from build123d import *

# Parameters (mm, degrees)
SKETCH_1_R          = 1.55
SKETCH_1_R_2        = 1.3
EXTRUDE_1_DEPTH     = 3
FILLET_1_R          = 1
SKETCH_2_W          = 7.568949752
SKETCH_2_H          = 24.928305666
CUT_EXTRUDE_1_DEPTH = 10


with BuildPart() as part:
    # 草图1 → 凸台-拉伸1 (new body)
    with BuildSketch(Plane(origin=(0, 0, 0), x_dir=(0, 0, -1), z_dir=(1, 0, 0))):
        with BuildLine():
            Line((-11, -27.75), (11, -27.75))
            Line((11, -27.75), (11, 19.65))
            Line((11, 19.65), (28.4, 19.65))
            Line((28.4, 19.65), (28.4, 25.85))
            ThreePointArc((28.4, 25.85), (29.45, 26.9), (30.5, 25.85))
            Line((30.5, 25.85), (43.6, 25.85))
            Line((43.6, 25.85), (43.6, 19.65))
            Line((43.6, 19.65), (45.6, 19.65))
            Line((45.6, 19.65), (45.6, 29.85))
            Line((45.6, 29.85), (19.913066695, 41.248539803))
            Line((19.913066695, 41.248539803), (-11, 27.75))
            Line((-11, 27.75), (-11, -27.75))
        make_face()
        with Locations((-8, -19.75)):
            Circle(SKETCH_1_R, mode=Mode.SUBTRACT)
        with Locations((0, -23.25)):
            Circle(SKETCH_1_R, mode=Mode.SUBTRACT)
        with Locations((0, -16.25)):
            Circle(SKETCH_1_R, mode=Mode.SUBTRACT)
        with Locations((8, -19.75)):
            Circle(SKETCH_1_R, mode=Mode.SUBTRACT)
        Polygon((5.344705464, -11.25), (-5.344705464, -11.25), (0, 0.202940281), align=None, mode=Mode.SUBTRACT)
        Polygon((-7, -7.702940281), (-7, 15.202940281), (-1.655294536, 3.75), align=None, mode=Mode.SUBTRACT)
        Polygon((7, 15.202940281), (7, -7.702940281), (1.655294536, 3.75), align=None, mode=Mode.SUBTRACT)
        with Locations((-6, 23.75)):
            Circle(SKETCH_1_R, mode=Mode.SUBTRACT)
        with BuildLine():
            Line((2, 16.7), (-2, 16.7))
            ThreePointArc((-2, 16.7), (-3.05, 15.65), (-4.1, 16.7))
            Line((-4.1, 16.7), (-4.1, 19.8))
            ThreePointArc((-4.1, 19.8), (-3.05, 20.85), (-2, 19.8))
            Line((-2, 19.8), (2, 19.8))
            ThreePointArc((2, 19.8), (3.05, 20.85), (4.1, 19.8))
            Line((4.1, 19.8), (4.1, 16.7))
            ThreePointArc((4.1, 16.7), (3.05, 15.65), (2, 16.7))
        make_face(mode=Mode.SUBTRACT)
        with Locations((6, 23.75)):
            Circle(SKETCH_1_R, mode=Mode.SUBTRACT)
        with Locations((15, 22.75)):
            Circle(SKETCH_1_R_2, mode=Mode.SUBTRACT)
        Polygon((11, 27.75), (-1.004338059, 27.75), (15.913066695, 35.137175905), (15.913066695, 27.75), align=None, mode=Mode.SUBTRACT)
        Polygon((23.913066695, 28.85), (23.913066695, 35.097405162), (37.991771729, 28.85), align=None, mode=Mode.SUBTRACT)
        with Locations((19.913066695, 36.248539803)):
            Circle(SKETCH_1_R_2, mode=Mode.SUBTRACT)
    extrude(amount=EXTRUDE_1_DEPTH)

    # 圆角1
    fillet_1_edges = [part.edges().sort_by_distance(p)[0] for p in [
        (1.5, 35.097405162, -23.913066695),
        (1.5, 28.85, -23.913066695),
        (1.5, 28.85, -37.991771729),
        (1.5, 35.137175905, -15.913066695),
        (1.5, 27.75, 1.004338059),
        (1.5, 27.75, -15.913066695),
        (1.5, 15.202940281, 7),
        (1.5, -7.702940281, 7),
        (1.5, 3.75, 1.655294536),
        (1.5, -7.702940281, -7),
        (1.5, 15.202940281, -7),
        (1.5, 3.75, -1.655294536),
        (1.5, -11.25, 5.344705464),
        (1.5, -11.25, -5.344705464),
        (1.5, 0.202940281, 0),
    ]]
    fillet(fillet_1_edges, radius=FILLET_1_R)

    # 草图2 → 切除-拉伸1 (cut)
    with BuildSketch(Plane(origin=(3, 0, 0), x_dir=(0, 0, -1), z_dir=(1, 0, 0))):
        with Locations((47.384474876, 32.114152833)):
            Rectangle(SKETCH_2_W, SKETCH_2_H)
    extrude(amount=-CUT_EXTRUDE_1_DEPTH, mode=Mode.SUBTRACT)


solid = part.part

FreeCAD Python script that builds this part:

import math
import FreeCAD as App
import Part
import Sketcher


def edges_at(feature, points):
    """Names of the edges that pass closest to the given points."""
    edges = feature.Shape.Edges
    near = lambda p: min(range(len(edges)), key=lambda i: edges[i].distToShape(Part.Vertex(*p))[0])
    return sorted({f"Edge{near(p) + 1}" for p in points})

doc = App.newDocument("Part")
body = doc.addObject("PartDesign::Body", "Body")

# Sketch on YZ plane
sketch1 = body.newObject("Sketcher::SketchObject", "Sketch")
sketch1.AttachmentSupport = (doc.getObject("YZ_Plane"), [""])
sketch1.MapMode = "FlatFace"
sketch1.addGeometry([
    Part.LineSegment(App.Vector(-27.75, 11, 0), App.Vector(-27.75, -11, 0)),  # 0
    Part.LineSegment(App.Vector(-27.75, -11, 0), App.Vector(19.65, -11, 0)),  # 1
    Part.LineSegment(App.Vector(19.65, -11, 0), App.Vector(19.65, -28.4, 0)),  # 2
    Part.LineSegment(App.Vector(19.65, -28.4, 0), App.Vector(25.85, -28.4, 0)),  # 3
    Part.ArcOfCircle(Part.Circle(App.Vector(25.85, -29.45, 0), App.Vector(0, 0, 1), 1.05), math.radians(-90), math.radians(90)),  # 4
    Part.LineSegment(App.Vector(25.85, -30.5, 0), App.Vector(25.85, -43.6, 0)),  # 5
    Part.LineSegment(App.Vector(25.85, -43.6, 0), App.Vector(19.65, -43.6, 0)),  # 6
    Part.LineSegment(App.Vector(19.65, -43.6, 0), App.Vector(19.65, -45.6, 0)),  # 7
    Part.LineSegment(App.Vector(19.65, -45.6, 0), App.Vector(29.85, -45.6, 0)),  # 8
    Part.LineSegment(App.Vector(29.85, -45.6, 0), App.Vector(41.24854, -19.913067, 0)),  # 9
    Part.LineSegment(App.Vector(41.24854, -19.913067, 0), App.Vector(27.75, 11, 0)),  # 10
    Part.LineSegment(App.Vector(27.75, 11, 0), App.Vector(-27.75, 11, 0)),  # 11
    Part.Circle(App.Vector(-19.75, 8, 0), App.Vector(0, 0, 1), 1.55),  # 12
    Part.Circle(App.Vector(-23.25, 0, 0), App.Vector(0, 0, 1), 1.55),  # 13
    Part.Circle(App.Vector(-16.25, 0, 0), App.Vector(0, 0, 1), 1.55),  # 14
    Part.Circle(App.Vector(-19.75, -8, 0), App.Vector(0, 0, 1), 1.55),  # 15
    Part.LineSegment(App.Vector(0.20294, 0, 0), App.Vector(-11.25, -5.344705, 0)),  # 16
    Part.LineSegment(App.Vector(-11.25, -5.344705, 0), App.Vector(-11.25, 5.344705, 0)),  # 17
    Part.LineSegment(App.Vector(-11.25, 5.344705, 0), App.Vector(0.20294, 0, 0)),  # 18
    Part.LineSegment(App.Vector(3.75, 1.655295, 0), App.Vector(-7.70294, 7, 0)),  # 19
    Part.LineSegment(App.Vector(-7.70294, 7, 0), App.Vector(15.20294, 7, 0)),  # 20
    Part.LineSegment(App.Vector(15.20294, 7, 0), App.Vector(3.75, 1.655295, 0)),  # 21
    Part.LineSegment(App.Vector(3.75, -1.655295, 0), App.Vector(15.20294, -7, 0)),  # 22
    Part.LineSegment(App.Vector(15.20294, -7, 0), App.Vector(-7.70294, -7, 0)),  # 23
    Part.LineSegment(App.Vector(-7.70294, -7, 0), App.Vector(3.75, -1.655295, 0)),  # 24
    Part.ArcOfCircle(Part.Circle(App.Vector(16.7, -3.05, 0), App.Vector(0, 0, 1), 1.05), math.radians(90), math.radians(270)),  # 25
    Part.LineSegment(App.Vector(16.7, -2, 0), App.Vector(16.7, 2, 0)),  # 26
    Part.ArcOfCircle(Part.Circle(App.Vector(16.7, 3.05, 0), App.Vector(0, 0, 1), 1.05), math.radians(90), math.radians(270)),  # 27
    Part.LineSegment(App.Vector(16.7, 4.1, 0), App.Vector(19.8, 4.1, 0)),  # 28
    Part.ArcOfCircle(Part.Circle(App.Vector(19.8, 3.05, 0), App.Vector(0, 0, 1), 1.05), math.radians(-90), math.radians(90)),  # 29
    Part.LineSegment(App.Vector(19.8, 2, 0), App.Vector(19.8, -2, 0)),  # 30
    Part.ArcOfCircle(Part.Circle(App.Vector(19.8, -3.05, 0), App.Vector(0, 0, 1), 1.05), math.radians(-90), math.radians(90)),  # 31
    Part.LineSegment(App.Vector(19.8, -4.1, 0), App.Vector(16.7, -4.1, 0)),  # 32
    Part.Circle(App.Vector(23.75, 6, 0), App.Vector(0, 0, 1), 1.55),  # 33
    Part.Circle(App.Vector(23.75, -6, 0), App.Vector(0, 0, 1), 1.55),  # 34
    Part.LineSegment(App.Vector(27.75, -15.913067, 0), App.Vector(27.75, 1.004338, 0)),  # 35
    Part.LineSegment(App.Vector(27.75, 1.004338, 0), App.Vector(35.137176, -15.913067, 0)),  # 36
    Part.LineSegment(App.Vector(35.137176, -15.913067, 0), App.Vector(27.75, -15.913067, 0)),  # 37
    Part.Circle(App.Vector(22.75, -15, 0), App.Vector(0, 0, 1), 1.3),  # 38
    Part.Circle(App.Vector(36.24854, -19.913067, 0), App.Vector(0, 0, 1), 1.3),  # 39
    Part.LineSegment(App.Vector(28.85, -37.991772, 0), App.Vector(28.85, -23.913067, 0)),  # 40
    Part.LineSegment(App.Vector(28.85, -23.913067, 0), App.Vector(35.097405, -23.913067, 0)),  # 41
    Part.LineSegment(App.Vector(35.097405, -23.913067, 0), App.Vector(28.85, -37.991772, 0)),  # 42
], False)
sketch1.addConstraint([
    Sketcher.Constraint("Coincident", 0, 2, 1, 1),
    Sketcher.Constraint("Coincident", 1, 2, 2, 1),
    Sketcher.Constraint("Coincident", 2, 2, 3, 1),
    Sketcher.Constraint("Tangent", 3, 2, 4, 2),
    Sketcher.Constraint("Coincident", 4, 1, 5, 1),
    Sketcher.Constraint("Coincident", 5, 2, 6, 1),
    Sketcher.Constraint("Coincident", 6, 2, 7, 1),
    Sketcher.Constraint("Coincident", 7, 2, 8, 1),
    Sketcher.Constraint("Coincident", 8, 2, 9, 1),
    Sketcher.Constraint("Coincident", 9, 2, 10, 1),
    Sketcher.Constraint("Coincident", 10, 2, 11, 1),
    Sketcher.Constraint("Coincident", 11, 2, 0, 1),
    Sketcher.Constraint("Coincident", 16, 2, 17, 1),
    Sketcher.Constraint("Coincident", 17, 2, 18, 1),
    Sketcher.Constraint("Coincident", 18, 2, 16, 1),
    Sketcher.Constraint("Coincident", 19, 2, 20, 1),
    Sketcher.Constraint("Coincident", 20, 2, 21, 1),
    Sketcher.Constraint("Coincident", 21, 2, 19, 1),
    Sketcher.Constraint("Coincident", 22, 2, 23, 1),
    Sketcher.Constraint("Coincident", 23, 2, 24, 1),
    Sketcher.Constraint("Coincident", 24, 2, 22, 1),
    Sketcher.Constraint("Coincident", 25, 1, 26, 1),
    Sketcher.Constraint("Coincident", 26, 2, 27, 2),
    Sketcher.Constraint("Tangent", 27, 1, 28, 1),
    Sketcher.Constraint("Tangent", 28, 2, 29, 2),
    Sketcher.Constraint("Coincident", 29, 1, 30, 1),
    Sketcher.Constraint("Coincident", 30, 2, 31, 2),
    Sketcher.Constraint("Tangent", 31, 1, 32, 1),
    Sketcher.Constraint("Tangent", 32, 2, 25, 2),
    Sketcher.Constraint("Coincident", 35, 2, 36, 1),
    Sketcher.Constraint("Coincident", 36, 2, 37, 1),
    Sketcher.Constraint("Coincident", 37, 2, 35, 1),
    Sketcher.Constraint("Coincident", 40, 2, 41, 1),
    Sketcher.Constraint("Coincident", 41, 2, 42, 1),
    Sketcher.Constraint("Coincident", 42, 2, 40, 1),
    Sketcher.Constraint("Vertical", 0),
    Sketcher.Constraint("Horizontal", 1),
    Sketcher.Constraint("Vertical", 2),
    Sketcher.Constraint("Horizontal", 3),
    Sketcher.Constraint("Vertical", 5),
    Sketcher.Constraint("Horizontal", 6),
    Sketcher.Constraint("Vertical", 7),
    Sketcher.Constraint("Horizontal", 8),
    Sketcher.Constraint("Horizontal", 11),
    Sketcher.Constraint("Vertical", 17),
    Sketcher.Constraint("Horizontal", 20),
    Sketcher.Constraint("Horizontal", 23),
    Sketcher.Constraint("Vertical", 26),
    Sketcher.Constraint("Horizontal", 28),
    Sketcher.Constraint("Vertical", 30),
    Sketcher.Constraint("Horizontal", 32),
    Sketcher.Constraint("Vertical", 35),
    Sketcher.Constraint("Horizontal", 37),
    Sketcher.Constraint("Vertical", 40),
    Sketcher.Constraint("Horizontal", 41),
    Sketcher.Constraint("Equal", 12, 13),
    Sketcher.Constraint("Equal", 13, 14),
    Sketcher.Constraint("Equal", 14, 15),
    Sketcher.Constraint("Equal", 4, 25),
    Sketcher.Constraint("Equal", 25, 27),
    Sketcher.Constraint("Equal", 27, 29),
    Sketcher.Constraint("Equal", 29, 31),
    Sketcher.Constraint("Equal", 15, 33),
    Sketcher.Constraint("Equal", 33, 34),
    Sketcher.Constraint("Equal", 38, 39),
    Sketcher.Constraint("Symmetric", 0, 2, 10, 2, -1, 1),
    Sketcher.Constraint("Symmetric", 12, 3, 15, 3, -1),
    Sketcher.Constraint("Symmetric", 25, 3, 27, 3, -1),
    Sketcher.Constraint("Symmetric", 33, 3, 34, 3, -1),
    Sketcher.Constraint("Symmetric", 20, 2, 22, 2, -1),
    Sketcher.Constraint("Symmetric", 21, 2, 24, 2, -1),
    Sketcher.Constraint("PointOnObject", 13, 3, -1),
    Sketcher.Constraint("PointOnObject", 14, 3, -1),
    Sketcher.Constraint("PointOnObject", 18, 2, -1),
    Sketcher.Constraint("Parallel", 18, 19),
    Sketcher.Constraint("Parallel", 16, 21),
    Sketcher.Constraint("Parallel", 19, 22),
    Sketcher.Constraint("Parallel", 21, 24),
    Sketcher.Constraint("Parallel", 10, 36),
    Sketcher.Constraint("Parallel", 9, 42),
    Sketcher.Constraint("Horizontal", 39, 3, 9, 2),
    Sketcher.Constraint("Vertical", 29, 3, 31, 3),
    Sketcher.Constraint("Vertical", 3, 2, 4, 1),
    Sketcher.Constraint("Vertical", 2, 2, 6, 2),
    Sketcher.Constraint("Vertical", 27, 3, 25, 1),
    Sketcher.Constraint("Vertical", 28, 2, 29, 1),
    Sketcher.Constraint("Vertical", 10, 2, 35, 2),
    Sketcher.Constraint("Equal", 18, 19),
    Sketcher.Constraint("Diameter", 12, 3.1),
    Sketcher.Constraint("Diameter", 38, 2.6),
    Sketcher.Constraint("DistanceY", 0, 2, 0, 1, 22.0),
    Sketcher.Constraint("DistanceY", 7, 2, 7, 1, 2.0),
    Sketcher.Constraint("DistanceY", 26, 1, 26, 2, 4.0),
    Sketcher.Constraint("Radius", 4, 1.05),
    Sketcher.Constraint("DistanceX", 1, 1, 1, 2, 47.4),
    Sketcher.Constraint("DistanceX", 3, 1, 3, 2, 6.2),
    Sketcher.Constraint("DistanceX", 8, 1, 8, 2, 10.2),
    Sketcher.Constraint("DistanceX", 11, 2, 11, 1, 55.5),
    Sketcher.Constraint("DistanceX", 28, 1, 28, 2, 3.1),
    Sketcher.Constraint("DistanceY", 2, 2, 2, 1, 17.4),
    Sketcher.Constraint("DistanceY", 5, 2, 5, 1, 13.1),
    Sketcher.Constraint("DistanceY", -1, 1, 12, 3, 8.0),
    Sketcher.Constraint("DistanceY", -1, 1, 33, 3, 6.0),
    Sketcher.Constraint("DistanceY", 38, 3, -1, 1, 15.0),
    Sketcher.Constraint("DistanceY", -1, 1, 19, 2, 7.0),
    Sketcher.Constraint("DistanceX", 13, 3, 14, 3, 7.0),
    Sketcher.Constraint("DistanceX", 38, 3, 34, 3, 1.0),
    Sketcher.Constraint("DistanceX", 0, 2, 15, 3, 8.0),
    Sketcher.Constraint("DistanceX", 39, 3, 9, 2, 5.0),
    Sketcher.Constraint("DistanceX", 33, 3, 10, 2, 4.0),
    Sketcher.Constraint("DistanceX", 14, 3, 16, 2, 5.0),
    Sketcher.Constraint("DistanceY", 39, 3, 36, 2, 4.0),
    Sketcher.Constraint("DistanceX", 3, 2, 40, 2, 3.0),
    Sketcher.Constraint("DistanceY", 40, 2, 37, 2, 8.0),
    Sketcher.Constraint("DistanceX", -1, 1, 25, 3, 16.7),
    Sketcher.Constraint("DistanceX", 13, 3, 12, 3, 3.5),
    Sketcher.Constraint("DistanceX", -1, 1, 21, 2, 3.75),
    Sketcher.Constraint("DistanceX", 20, 1, 20, 2, 22.905881),
    Sketcher.Constraint("DistanceY", 17, 1, 17, 2, 10.689411),
    Sketcher.Constraint("Distance", 10, 33.73171),
    Sketcher.Constraint("Distance", 36, 18.459928),
    Sketcher.Constraint("DistanceX", 37, 2, 37, 1, 7.387176),
    Sketcher.Constraint("DistanceX", 41, 1, 41, 2, 6.247405),
])
pad1 = body.newObject("PartDesign::Pad", "Pad")
pad1.Profile = sketch1
pad1.Length = 3
doc.recompute()

fillet = body.newObject("PartDesign::Fillet", "Fillet")
fillet.Base = (pad1, edges_at(pad1, [
    (1.5, 35.097, -23.913),
    (1.5, 28.85, -23.913),
    (1.5, 28.85, -37.992),
    (1.5, 35.137, -15.913),
    (1.5, 27.75, 1.004),
    (1.5, 27.75, -15.913),
    (1.5, 15.203, 7),
    (1.5, -7.703, 7),
    (1.5, 3.75, 1.655),
    (1.5, -7.703, -7),
    (1.5, 15.203, -7),
    (1.5, 3.75, -1.655),
    (1.5, -11.25, 5.345),
    (1.5, -11.25, -5.345),
    (1.5, 0.203, 0),
]))
fillet.Radius = 1

# Sketch on YZ plane
sketch2 = body.newObject("Sketcher::SketchObject", "Sketch001")
sketch2.AttachmentSupport = (doc.getObject("YZ_Plane"), [""])
sketch2.MapMode = "FlatFace"
sketch2.AttachmentOffset = App.Placement(App.Vector(0, 0, 3), App.Rotation())
sketch2.addGeometry([
    Part.LineSegment(App.Vector(44.578306, -43.6, 0), App.Vector(19.65, -43.6, 0)),
    Part.LineSegment(App.Vector(19.65, -43.6, 0), App.Vector(19.65, -51.16895, 0)),
    Part.LineSegment(App.Vector(19.65, -51.16895, 0), App.Vector(44.578306, -51.16895, 0)),
    Part.LineSegment(App.Vector(44.578306, -51.16895, 0), App.Vector(44.578306, -43.6, 0)),
], False)
sketch2.addConstraint([
    Sketcher.Constraint("Coincident", 0, 2, 1, 1),
    Sketcher.Constraint("Coincident", 1, 2, 2, 1),
    Sketcher.Constraint("Coincident", 2, 2, 3, 1),
    Sketcher.Constraint("Coincident", 3, 2, 0, 1),
    Sketcher.Constraint("Horizontal", 0),
    Sketcher.Constraint("Vertical", 1),
    Sketcher.Constraint("Horizontal", 2),
    Sketcher.Constraint("Vertical", 3),
    Sketcher.Constraint("DistanceY", 0, 2, -1, 1, 43.6),
    Sketcher.Constraint("DistanceX", -1, 1, 0, 2, 19.65),
    Sketcher.Constraint("DistanceY", 1, 2, 1, 1, 7.56895),
    Sketcher.Constraint("DistanceX", 0, 2, 0, 1, 24.928306),
])
pocket1 = body.newObject("PartDesign::Pocket", "Pocket")
pocket1.Profile = sketch2
pocket1.Length = 10

doc.recompute()
